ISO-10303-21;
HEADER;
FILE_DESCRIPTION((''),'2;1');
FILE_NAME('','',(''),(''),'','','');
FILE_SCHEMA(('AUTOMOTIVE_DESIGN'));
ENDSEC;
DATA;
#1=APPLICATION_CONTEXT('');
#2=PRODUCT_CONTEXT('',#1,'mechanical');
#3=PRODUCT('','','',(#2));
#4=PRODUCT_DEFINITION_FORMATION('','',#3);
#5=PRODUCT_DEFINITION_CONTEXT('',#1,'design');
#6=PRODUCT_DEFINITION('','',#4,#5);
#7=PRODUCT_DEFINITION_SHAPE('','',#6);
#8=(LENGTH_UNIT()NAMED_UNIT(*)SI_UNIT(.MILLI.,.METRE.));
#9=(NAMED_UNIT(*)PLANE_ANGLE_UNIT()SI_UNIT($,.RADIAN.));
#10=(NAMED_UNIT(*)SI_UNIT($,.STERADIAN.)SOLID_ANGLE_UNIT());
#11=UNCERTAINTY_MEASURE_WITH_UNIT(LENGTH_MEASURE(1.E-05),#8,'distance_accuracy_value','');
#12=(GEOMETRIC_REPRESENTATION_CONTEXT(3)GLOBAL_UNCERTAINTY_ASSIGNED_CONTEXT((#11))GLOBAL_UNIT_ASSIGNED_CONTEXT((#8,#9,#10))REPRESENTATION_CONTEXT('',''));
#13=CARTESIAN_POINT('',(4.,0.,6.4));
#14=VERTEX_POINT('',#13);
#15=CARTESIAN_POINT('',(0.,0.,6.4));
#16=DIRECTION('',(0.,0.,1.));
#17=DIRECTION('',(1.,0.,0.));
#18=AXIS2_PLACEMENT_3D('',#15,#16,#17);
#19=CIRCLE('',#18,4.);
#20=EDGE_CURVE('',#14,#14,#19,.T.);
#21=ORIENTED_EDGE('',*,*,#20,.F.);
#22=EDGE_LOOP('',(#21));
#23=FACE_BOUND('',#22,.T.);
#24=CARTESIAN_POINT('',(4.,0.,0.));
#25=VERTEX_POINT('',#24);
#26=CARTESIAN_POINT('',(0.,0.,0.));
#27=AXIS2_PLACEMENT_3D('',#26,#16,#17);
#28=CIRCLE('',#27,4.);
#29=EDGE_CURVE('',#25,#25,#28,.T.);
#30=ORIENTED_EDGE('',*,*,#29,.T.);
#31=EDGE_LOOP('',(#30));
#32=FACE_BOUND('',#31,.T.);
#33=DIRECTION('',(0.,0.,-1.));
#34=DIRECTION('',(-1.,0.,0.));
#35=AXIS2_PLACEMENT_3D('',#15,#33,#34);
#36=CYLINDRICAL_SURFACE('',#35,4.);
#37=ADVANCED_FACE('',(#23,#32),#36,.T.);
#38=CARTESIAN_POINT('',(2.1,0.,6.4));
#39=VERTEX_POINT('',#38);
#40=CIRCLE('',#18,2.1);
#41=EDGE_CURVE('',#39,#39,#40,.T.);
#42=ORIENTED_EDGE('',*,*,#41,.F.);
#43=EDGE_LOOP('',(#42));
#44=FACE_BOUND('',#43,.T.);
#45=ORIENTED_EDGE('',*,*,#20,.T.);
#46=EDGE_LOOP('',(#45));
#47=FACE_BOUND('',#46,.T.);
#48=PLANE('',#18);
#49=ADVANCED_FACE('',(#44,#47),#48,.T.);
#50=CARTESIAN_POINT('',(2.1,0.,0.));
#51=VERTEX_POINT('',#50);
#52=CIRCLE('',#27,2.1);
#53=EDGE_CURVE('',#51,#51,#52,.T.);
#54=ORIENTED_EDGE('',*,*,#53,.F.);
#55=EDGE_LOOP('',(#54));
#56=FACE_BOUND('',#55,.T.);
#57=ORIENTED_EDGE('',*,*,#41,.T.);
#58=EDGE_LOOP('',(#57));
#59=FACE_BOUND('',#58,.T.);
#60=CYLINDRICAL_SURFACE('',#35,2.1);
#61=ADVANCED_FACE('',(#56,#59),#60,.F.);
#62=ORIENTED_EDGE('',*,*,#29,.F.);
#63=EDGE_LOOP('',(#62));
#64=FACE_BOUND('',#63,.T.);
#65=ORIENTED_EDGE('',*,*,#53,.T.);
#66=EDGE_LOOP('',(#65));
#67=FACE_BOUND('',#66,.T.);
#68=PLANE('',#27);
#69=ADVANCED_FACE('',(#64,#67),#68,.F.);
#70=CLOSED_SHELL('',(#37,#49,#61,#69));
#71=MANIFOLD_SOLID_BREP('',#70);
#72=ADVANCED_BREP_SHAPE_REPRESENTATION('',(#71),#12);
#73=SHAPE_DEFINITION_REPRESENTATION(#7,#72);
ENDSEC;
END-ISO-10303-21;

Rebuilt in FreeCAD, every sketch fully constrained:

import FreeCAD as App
import Part
import Sketcher

doc = App.newDocument("Part")
body = doc.addObject("PartDesign::Body", "Body")

sketch1 = body.newObject("Sketcher::SketchObject", "Sketch")
sketch1.AttachmentSupport = (doc.getObject("XY_Plane"), [""])
sketch1.MapMode = "FlatFace"
sketch1.addGeometry([
    Part.Circle(App.Vector(0, 0, 0), App.Vector(0, 0, 1), 4),
    Part.Circle(App.Vector(0, 0, 0), App.Vector(0, 0, 1), 2.1),
], False)
sketch1.addConstraint([
    Sketcher.Constraint("Coincident", 0, 3, -1, 1),
    Sketcher.Constraint("Coincident", 1, 3, -1, 1),
    Sketcher.Constraint("Diameter", 0, 8.0),
    Sketcher.Constraint("Diameter", 1, 4.2),
])
pad1 = body.newObject("PartDesign::Pad", "Pad")
pad1.Profile = sketch1
pad1.Length = 6.4

doc.recompute()
